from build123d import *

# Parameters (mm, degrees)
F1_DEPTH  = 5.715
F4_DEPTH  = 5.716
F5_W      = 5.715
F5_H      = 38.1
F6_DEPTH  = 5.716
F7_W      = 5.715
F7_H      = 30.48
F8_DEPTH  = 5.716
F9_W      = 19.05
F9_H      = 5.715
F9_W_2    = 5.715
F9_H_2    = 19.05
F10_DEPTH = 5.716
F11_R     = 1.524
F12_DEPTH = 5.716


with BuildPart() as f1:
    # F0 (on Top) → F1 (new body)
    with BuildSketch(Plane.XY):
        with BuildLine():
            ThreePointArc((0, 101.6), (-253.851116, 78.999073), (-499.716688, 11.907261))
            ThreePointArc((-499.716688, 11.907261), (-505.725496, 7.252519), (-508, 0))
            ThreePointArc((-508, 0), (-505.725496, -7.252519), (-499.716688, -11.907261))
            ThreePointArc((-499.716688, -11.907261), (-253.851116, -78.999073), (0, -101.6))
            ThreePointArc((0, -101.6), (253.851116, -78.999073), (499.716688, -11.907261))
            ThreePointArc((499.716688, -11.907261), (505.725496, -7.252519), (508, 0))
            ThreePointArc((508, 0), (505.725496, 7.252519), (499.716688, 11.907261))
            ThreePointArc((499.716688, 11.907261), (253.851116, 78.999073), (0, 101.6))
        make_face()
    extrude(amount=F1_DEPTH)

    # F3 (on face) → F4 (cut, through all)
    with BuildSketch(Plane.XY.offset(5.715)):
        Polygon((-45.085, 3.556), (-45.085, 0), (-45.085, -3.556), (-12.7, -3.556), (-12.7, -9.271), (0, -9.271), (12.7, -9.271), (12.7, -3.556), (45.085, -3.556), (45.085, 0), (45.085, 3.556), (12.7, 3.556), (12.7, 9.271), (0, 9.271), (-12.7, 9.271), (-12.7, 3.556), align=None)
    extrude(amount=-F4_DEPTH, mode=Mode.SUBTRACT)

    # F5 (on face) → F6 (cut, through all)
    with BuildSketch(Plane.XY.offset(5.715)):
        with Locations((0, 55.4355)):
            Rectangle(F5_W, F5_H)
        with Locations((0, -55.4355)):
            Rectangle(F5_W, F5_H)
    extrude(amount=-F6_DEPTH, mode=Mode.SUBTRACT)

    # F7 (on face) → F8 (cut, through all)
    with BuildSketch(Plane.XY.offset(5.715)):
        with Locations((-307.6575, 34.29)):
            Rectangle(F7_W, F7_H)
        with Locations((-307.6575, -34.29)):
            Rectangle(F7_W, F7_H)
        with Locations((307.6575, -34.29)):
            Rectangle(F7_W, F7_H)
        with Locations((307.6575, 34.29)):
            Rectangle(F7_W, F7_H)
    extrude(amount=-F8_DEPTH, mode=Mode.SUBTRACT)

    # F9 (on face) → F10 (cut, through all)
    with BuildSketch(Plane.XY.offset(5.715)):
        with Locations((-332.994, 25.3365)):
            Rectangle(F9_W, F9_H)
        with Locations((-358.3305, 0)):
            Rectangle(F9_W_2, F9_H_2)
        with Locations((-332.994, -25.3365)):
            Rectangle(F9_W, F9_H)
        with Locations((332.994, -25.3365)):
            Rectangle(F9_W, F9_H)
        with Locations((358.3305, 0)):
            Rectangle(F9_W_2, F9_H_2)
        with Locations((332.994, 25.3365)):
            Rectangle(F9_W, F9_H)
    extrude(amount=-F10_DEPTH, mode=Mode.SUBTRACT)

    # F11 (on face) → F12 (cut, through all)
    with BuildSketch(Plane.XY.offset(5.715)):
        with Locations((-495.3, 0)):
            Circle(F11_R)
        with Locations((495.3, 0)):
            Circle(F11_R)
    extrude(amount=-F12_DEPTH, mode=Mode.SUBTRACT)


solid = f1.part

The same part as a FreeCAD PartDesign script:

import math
import FreeCAD as App
import Part
import Sketcher

V = App.Vector
Q = App.Units.Quantity


def add_polygon(sketch, points):
    """Adds a closed chain of lines whose ends are joined by coincident constraints."""
    first, n = sketch.GeometryCount, len(points)
    for a, b in zip(points, points[1:] + points[:1]):
        sketch.addGeometry(Part.LineSegment(App.Vector(*a, 0), App.Vector(*b, 0)), False)
    for i in range(n):
        sketch.addConstraint(Sketcher.Constraint("Coincident", first + i, 2, first + (i + 1) % n, 1))

doc = App.newDocument("Part")
body = doc.addObject("PartDesign::Body", "Body")

sketch1 = doc.addObject("Sketcher::SketchObject", "Sketch")
body.addObject(sketch1)
sketch1.AttachmentSupport = (doc.XY_Plane, [""])
sketch1.MapMode = "FlatFace"
sketch1.addGeometry([
    Part.ArcOfCircle(Part.Circle(V(0, -1335, 0), V(0, 0, 1), 1437), math.radians(90), math.radians(110)),
    Part.ArcOfCircle(Part.Circle(V(-495, 0, 0), V(0, 0, 1), 13), math.radians(110), math.radians(180)),
    Part.ArcOfCircle(Part.Circle(V(-495, 0, 0), V(0, 0, 1), 13), math.radians(-180), math.radians(-110)),
    Part.ArcOfCircle(Part.Circle(V(0, 1335, 0), V(0, 0, 1), 1437), math.radians(-110), math.radians(-90)),
    Part.ArcOfCircle(Part.Circle(V(0, 1335, 0), V(0, 0, 1), 1437), math.radians(-90), math.radians(-70)),
    Part.ArcOfCircle(Part.Circle(V(495, 0, 0), V(0, 0, 1), 13), math.radians(-70), math.radians(0)),
    Part.ArcOfCircle(Part.Circle(V(495, 0, 0), V(0, 0, 1), 13), math.radians(0), math.radians(70)),
    Part.ArcOfCircle(Part.Circle(V(0, -1335, 0), V(0, 0, 1), 1437), math.radians(70), math.radians(90)),
], False)
sketch1.addConstraint([
    Sketcher.Constraint("Tangent", 0, 2, 1, 1),
    Sketcher.Constraint("Tangent", 1, 2, 2, 1),
    Sketcher.Constraint("Tangent", 2, 2, 3, 1),
    Sketcher.Constraint("Coincident", 3, 2, 4, 1),
    Sketcher.Constraint("Tangent", 4, 2, 5, 1),
    Sketcher.Constraint("Tangent", 5, 2, 6, 1),
    Sketcher.Constraint("Tangent", 6, 2, 7, 1),
    Sketcher.Constraint("Coincident", 7, 2, 0, 1),
    Sketcher.Constraint("Equal", 1, 2),
    Sketcher.Constraint("Equal", 0, 3),
    Sketcher.Constraint("Equal", 3, 4),
    Sketcher.Constraint("Equal", 2, 5),
    Sketcher.Constraint("Equal", 5, 6),
    Sketcher.Constraint("Equal", 4, 7),
    Sketcher.Constraint("Symmetric", 0, 3, 4, 3, -1, 1),
    Sketcher.Constraint("Symmetric", 1, 2, 5, 2, -1, 1),
    Sketcher.Constraint("PointOnObject", 1, 3, -1),
    Sketcher.Constraint("PointOnObject", 1, 2, -1),
    Sketcher.Constraint("PointOnObject", 3, 2, -2),
    Sketcher.Constraint("PointOnObject", 7, 2, -2),
    Sketcher.Constraint("Radius", 1, Q("0.5 in")),
    Sketcher.Constraint("DistanceX", 1, 2, -1, 1, Q("20 in")),
    Sketcher.Constraint("DistanceY", 3, 2, -1, 1, Q("4 in")),
    Sketcher.Constraint("Radius", 0, Q("1436.914255 mm")),
])
pad1 = doc.addObject("PartDesign::Pad", "Pad")
body.addObject(pad1)
pad1.Profile = sketch1
pad1.Length = Q("0.225 in")

sketch2 = doc.addObject("Sketcher::SketchObject", "Sketch001")
body.addObject(sketch2)
sketch2.AttachmentSupport = (doc.XY_Plane, [""])
sketch2.MapMode = "FlatFace"
sketch2.AttachmentOffset = App.Placement(V(0, 0, 0.225 * 25.4), App.Rotation())
add_polygon(sketch2, [(-45, 4), (-45, -4), (-13, -4), (-13, -9), (13, -9), (13, -4), (45, -4), (45, 4), (13, 4), (13, 9), (-13, 9), (-13, 4)])
sketch2.addConstraint([
    Sketcher.Constraint("Vertical", 0),
    Sketcher.Constraint("Horizontal", 1),
    Sketcher.Constraint("Vertical", 2),
    Sketcher.Constraint("Horizontal", 3),
    Sketcher.Constraint("Vertical", 4),
    Sketcher.Constraint("Horizontal", 5),
    Sketcher.Constraint("Vertical", 6),
    Sketcher.Constraint("Horizontal", 7),
    Sketcher.Constraint("Vertical", 8),
    Sketcher.Constraint("Horizontal", 9),
    Sketcher.Constraint("Vertical", 10),
    Sketcher.Constraint("Horizontal", 11),
    Sketcher.Constraint("Symmetric", 0, 2, 6, 2, -1, 1),
    Sketcher.Constraint("Symmetric", 2, 2, 8, 2, -1, 1),
    Sketcher.Constraint("Symmetric", 4, 2, 10, 2, -1, 1),
    Sketcher.Constraint("Symmetric", 1, 2, 4, 2, -2),
    Sketcher.Constraint("DistanceX", 3, 1, 3, 2, Q("1 in")),
    Sketcher.Constraint("DistanceY", 0, 2, 0, 1, Q("0.28 in")),
    Sketcher.Constraint("DistanceX", 1, 1, 1, 2, Q("1.275 in")),
    Sketcher.Constraint("DistanceY", 2, 2, 2, 1, Q("0.225 in")),
])
pocket1 = doc.addObject("PartDesign::Pocket", "Pocket")
body.addObject(pocket1)
pocket1.Profile = sketch2
pocket1.Type = "ThroughAll"

sketch3 = doc.addObject("Sketcher::SketchObject", "Sketch002")
body.addObject(sketch3)
sketch3.AttachmentSupport = (doc.XY_Plane, [""])
sketch3.MapMode = "FlatFace"
sketch3.AttachmentOffset = App.Placement(V(0, 0, 0.225 * 25.4), App.Rotation())
add_polygon(sketch3, [(-3, 74), (-3, 36), (3, 36), (3, 74)])
add_polygon(sketch3, [(-3, -36), (-3, -74), (3, -74), (3, -36)])
sketch3.addConstraint([
    Sketcher.Constraint("Vertical", 0),
    Sketcher.Constraint("Horizontal", 1),
    Sketcher.Constraint("Vertical", 2),
    Sketcher.Constraint("Horizontal", 3),
    Sketcher.Constraint("Vertical", 4),
    Sketcher.Constraint("Horizontal", 5),
    Sketcher.Constraint("Vertical", 6),
    Sketcher.Constraint("Horizontal", 7),
    Sketcher.Constraint("Symmetric", 2, 2, 4, 2, -1, 1),
    Sketcher.Constraint("Symmetric", 0, 2, 6, 2, -1, 1),
    Sketcher.Constraint("Vertical", 3, 2, 4, 2),
    Sketcher.Constraint("DistanceY", 0, 2, 0, 1, Q("1.5 in")),
    Sketcher.Constraint("DistanceX", 1, 1, 1, 2, Q("0.225 in")),
    Sketcher.Constraint("DistanceY", 4, 2, 0, 2, Q("4.365 in")),
])
pocket2 = doc.addObject("PartDesign::Pocket", "Pocket001")
body.addObject(pocket2)
pocket2.Profile = sketch3
pocket2.Type = "ThroughAll"

sketch4 = doc.addObject("Sketcher::SketchObject", "Sketch003")
body.addObject(sketch4)
sketch4.AttachmentSupport = (doc.XY_Plane, [""])
sketch4.MapMode = "FlatFace"
sketch4.AttachmentOffset = App.Placement(V(0, 0, 0.225 * 25.4), App.Rotation())
add_polygon(sketch4, [(-311, 50), (-311, 19), (-305, 19), (-305, 50)])
add_polygon(sketch4, [(-311, -19), (-311, -50), (-305, -50), (-305, -19)])
add_polygon(sketch4, [(305, -19), (305, -50), (311, -50), (311, -19)])
add_polygon(sketch4, [(305, 50), (305, 19), (311, 19), (311, 50)])
sketch4.addConstraint([
    Sketcher.Constraint("Vertical", 0),
    Sketcher.Constraint("Horizontal", 1),
    Sketcher.Constraint("Vertical", 2),
    Sketcher.Constraint("Horizontal", 3),
    Sketcher.Constraint("Vertical", 4),
    Sketcher.Constraint("Horizontal", 5),
    Sketcher.Constraint("Vertical", 6),
    Sketcher.Constraint("Horizontal", 7),
    Sketcher.Constraint("Vertical", 8),
    Sketcher.Constraint("Horizontal", 9),
    Sketcher.Constraint("Vertical", 10),
    Sketcher.Constraint("Horizontal", 11),
    Sketcher.Constraint("Vertical", 12),
    Sketcher.Constraint("Horizontal", 13),
    Sketcher.Constraint("Vertical", 14),
    Sketcher.Constraint("Horizontal", 15),
    Sketcher.Constraint("Symmetric", 2, 2, 8, 2, -1, 1),
    Sketcher.Constraint("Symmetric", 0, 2, 10, 2, -1, 1),
    Sketcher.Constraint("Symmetric", 6, 2, 12, 2, -1, 1),
    Sketcher.Constraint("Symmetric", 4, 2, 14, 2, -1, 1),
    Sketcher.Constraint("Symmetric", 5, 2, 8, 2, -2),
    Sketcher.Constraint("Symmetric", 7, 2, 10, 2, -2),
    Sketcher.Constraint("DistanceY", 0, 2, 0, 1, Q("1.2 in")),
    Sketcher.Constraint("DistanceX", 1, 2, -1, 1, Q("12 in")),
    Sketcher.Constraint("DistanceY", 4, 2, 0, 2, Q("2.7 in")),
    Sketcher.Constraint("DistanceX", 1, 1, 1, 2, Q("0.225 in")),
])
pocket3 = doc.addObject("PartDesign::Pocket", "Pocket002")
body.addObject(pocket3)
pocket3.Profile = sketch4
pocket3.Type = "ThroughAll"

sketch5 = doc.addObject("Sketcher::SketchObject", "Sketch004")
body.addObject(sketch5)
sketch5.AttachmentSupport = (doc.XY_Plane, [""])
sketch5.MapMode = "FlatFace"
sketch5.AttachmentOffset = App.Placement(V(0, 0, 0.225 * 25.4), App.Rotation())
add_polygon(sketch5, [(-343, 28), (-343, 22), (-323, 22), (-323, 28)])
add_polygon(sketch5, [(-361, 10), (-361, -10), (-355, -10), (-355, 10)])
add_polygon(sketch5, [(-343, -22), (-343, -28), (-323, -28), (-323, -22)])
add_polygon(sketch5, [(323, -22), (323, -28), (343, -28), (343, -22)])
add_polygon(sketch5, [(355, 10), (355, -10), (361, -10), (361, 10)])
add_polygon(sketch5, [(323, 28), (323, 22), (343, 22), (343, 28)])
sketch5.addConstraint([
    Sketcher.Constraint("Vertical", 0),
    Sketcher.Constraint("Horizontal", 1),
    Sketcher.Constraint("Vertical", 2),
    Sketcher.Constraint("Horizontal", 3),
    Sketcher.Constraint("Vertical", 4),
    Sketcher.Constraint("Horizontal", 5),
    Sketcher.Constraint("Vertical", 6),
    Sketcher.Constraint("Horizontal", 7),
    Sketcher.Constraint("Vertical", 8),
    Sketcher.Constraint("Horizontal", 9),
    Sketcher.Constraint("Vertical", 10),
    Sketcher.Constraint("Horizontal", 11),
    Sketcher.Constraint("Vertical", 12),
    Sketcher.Constraint("Horizontal", 13),
    Sketcher.Constraint("Vertical", 14),
    Sketcher.Constraint("Horizontal", 15),
    Sketcher.Constraint("Vertical", 16),
    Sketcher.Constraint("Horizontal", 17),
    Sketcher.Constraint("Vertical", 18),
    Sketcher.Constraint("Horizontal", 19),
    Sketcher.Constraint("Vertical", 20),
    Sketcher.Constraint("Horizontal", 21),
    Sketcher.Constraint("Vertical", 22),
    Sketcher.Constraint("Horizontal", 23),
    Sketcher.Constraint("Symmetric", 2, 2, 12, 2, -1, 1),
    Sketcher.Constraint("Symmetric", 0, 2, 14, 2, -1, 1),
    Sketcher.Constraint("Symmetric", 6, 2, 16, 2, -1, 1),
    Sketcher.Constraint("Symmetric", 4, 2, 18, 2, -1, 1),
    Sketcher.Constraint("Symmetric", 10, 2, 20, 2, -1, 1),
    Sketcher.Constraint("Symmetric", 8, 2, 22, 2, -1, 1),
    Sketcher.Constraint("Symmetric", 9, 2, 12, 2, -2),
    Sketcher.Constraint("Symmetric", 11, 2, 14, 2, -2),
    Sketcher.Constraint("Horizontal", 5, 2, 16, 2),
    Sketcher.Constraint("Equal", 19, 0),
    Sketcher.Constraint("Equal", 23, 4),
    Sketcher.Constraint("DistanceX", 1, 1, 1, 2, Q("0.75 in")),
    Sketcher.Constraint("DistanceX", 5, 1, 5, 2, Q("0.225 in")),
    Sketcher.Constraint("DistanceY", -1, 1, 2, 2, Q("1.11 in")),
    Sketcher.Constraint("DistanceX", 4, 2, -1, 1, Q("14.22 in")),
    Sketcher.Constraint("DistanceX", 5, 2, 0, 2, Q("0.51 in")),
])
pocket4 = doc.addObject("PartDesign::Pocket", "Pocket003")
body.addObject(pocket4)
pocket4.Profile = sketch5
pocket4.Type = "ThroughAll"

sketch6 = doc.addObject("Sketcher::SketchObject", "Sketch005")
body.addObject(sketch6)
sketch6.AttachmentSupport = (doc.XY_Plane, [""])
sketch6.MapMode = "FlatFace"
sketch6.AttachmentOffset = App.Placement(V(0, 0, 0.225 * 25.4), App.Rotation())
sketch6.addGeometry([
    Part.Circle(V(-495.3, 0, 0), V(0, 0, 1), 1.5),
    Part.Circle(V(495.3, 0, 0), V(0, 0, 1), 1.5),
], False)
sketch6.addConstraint([
    Sketcher.Constraint("Equal", 0, 1),
    Sketcher.Constraint("Symmetric", 0, 3, 1, 3, -1, 1),
    Sketcher.Constraint("PointOnObject", 0, 3, -1),
    Sketcher.Constraint("Diameter", 0, Q("0.12 in")),
    Sketcher.Constraint("DistanceX", 0, 3, 1, 3, Q("39 in")),
])
pocket5 = doc.addObject("PartDesign::Pocket", "Pocket004")
body.addObject(pocket5)
pocket5.Profile = sketch6
pocket5.Type = "ThroughAll"

doc.recompute()
